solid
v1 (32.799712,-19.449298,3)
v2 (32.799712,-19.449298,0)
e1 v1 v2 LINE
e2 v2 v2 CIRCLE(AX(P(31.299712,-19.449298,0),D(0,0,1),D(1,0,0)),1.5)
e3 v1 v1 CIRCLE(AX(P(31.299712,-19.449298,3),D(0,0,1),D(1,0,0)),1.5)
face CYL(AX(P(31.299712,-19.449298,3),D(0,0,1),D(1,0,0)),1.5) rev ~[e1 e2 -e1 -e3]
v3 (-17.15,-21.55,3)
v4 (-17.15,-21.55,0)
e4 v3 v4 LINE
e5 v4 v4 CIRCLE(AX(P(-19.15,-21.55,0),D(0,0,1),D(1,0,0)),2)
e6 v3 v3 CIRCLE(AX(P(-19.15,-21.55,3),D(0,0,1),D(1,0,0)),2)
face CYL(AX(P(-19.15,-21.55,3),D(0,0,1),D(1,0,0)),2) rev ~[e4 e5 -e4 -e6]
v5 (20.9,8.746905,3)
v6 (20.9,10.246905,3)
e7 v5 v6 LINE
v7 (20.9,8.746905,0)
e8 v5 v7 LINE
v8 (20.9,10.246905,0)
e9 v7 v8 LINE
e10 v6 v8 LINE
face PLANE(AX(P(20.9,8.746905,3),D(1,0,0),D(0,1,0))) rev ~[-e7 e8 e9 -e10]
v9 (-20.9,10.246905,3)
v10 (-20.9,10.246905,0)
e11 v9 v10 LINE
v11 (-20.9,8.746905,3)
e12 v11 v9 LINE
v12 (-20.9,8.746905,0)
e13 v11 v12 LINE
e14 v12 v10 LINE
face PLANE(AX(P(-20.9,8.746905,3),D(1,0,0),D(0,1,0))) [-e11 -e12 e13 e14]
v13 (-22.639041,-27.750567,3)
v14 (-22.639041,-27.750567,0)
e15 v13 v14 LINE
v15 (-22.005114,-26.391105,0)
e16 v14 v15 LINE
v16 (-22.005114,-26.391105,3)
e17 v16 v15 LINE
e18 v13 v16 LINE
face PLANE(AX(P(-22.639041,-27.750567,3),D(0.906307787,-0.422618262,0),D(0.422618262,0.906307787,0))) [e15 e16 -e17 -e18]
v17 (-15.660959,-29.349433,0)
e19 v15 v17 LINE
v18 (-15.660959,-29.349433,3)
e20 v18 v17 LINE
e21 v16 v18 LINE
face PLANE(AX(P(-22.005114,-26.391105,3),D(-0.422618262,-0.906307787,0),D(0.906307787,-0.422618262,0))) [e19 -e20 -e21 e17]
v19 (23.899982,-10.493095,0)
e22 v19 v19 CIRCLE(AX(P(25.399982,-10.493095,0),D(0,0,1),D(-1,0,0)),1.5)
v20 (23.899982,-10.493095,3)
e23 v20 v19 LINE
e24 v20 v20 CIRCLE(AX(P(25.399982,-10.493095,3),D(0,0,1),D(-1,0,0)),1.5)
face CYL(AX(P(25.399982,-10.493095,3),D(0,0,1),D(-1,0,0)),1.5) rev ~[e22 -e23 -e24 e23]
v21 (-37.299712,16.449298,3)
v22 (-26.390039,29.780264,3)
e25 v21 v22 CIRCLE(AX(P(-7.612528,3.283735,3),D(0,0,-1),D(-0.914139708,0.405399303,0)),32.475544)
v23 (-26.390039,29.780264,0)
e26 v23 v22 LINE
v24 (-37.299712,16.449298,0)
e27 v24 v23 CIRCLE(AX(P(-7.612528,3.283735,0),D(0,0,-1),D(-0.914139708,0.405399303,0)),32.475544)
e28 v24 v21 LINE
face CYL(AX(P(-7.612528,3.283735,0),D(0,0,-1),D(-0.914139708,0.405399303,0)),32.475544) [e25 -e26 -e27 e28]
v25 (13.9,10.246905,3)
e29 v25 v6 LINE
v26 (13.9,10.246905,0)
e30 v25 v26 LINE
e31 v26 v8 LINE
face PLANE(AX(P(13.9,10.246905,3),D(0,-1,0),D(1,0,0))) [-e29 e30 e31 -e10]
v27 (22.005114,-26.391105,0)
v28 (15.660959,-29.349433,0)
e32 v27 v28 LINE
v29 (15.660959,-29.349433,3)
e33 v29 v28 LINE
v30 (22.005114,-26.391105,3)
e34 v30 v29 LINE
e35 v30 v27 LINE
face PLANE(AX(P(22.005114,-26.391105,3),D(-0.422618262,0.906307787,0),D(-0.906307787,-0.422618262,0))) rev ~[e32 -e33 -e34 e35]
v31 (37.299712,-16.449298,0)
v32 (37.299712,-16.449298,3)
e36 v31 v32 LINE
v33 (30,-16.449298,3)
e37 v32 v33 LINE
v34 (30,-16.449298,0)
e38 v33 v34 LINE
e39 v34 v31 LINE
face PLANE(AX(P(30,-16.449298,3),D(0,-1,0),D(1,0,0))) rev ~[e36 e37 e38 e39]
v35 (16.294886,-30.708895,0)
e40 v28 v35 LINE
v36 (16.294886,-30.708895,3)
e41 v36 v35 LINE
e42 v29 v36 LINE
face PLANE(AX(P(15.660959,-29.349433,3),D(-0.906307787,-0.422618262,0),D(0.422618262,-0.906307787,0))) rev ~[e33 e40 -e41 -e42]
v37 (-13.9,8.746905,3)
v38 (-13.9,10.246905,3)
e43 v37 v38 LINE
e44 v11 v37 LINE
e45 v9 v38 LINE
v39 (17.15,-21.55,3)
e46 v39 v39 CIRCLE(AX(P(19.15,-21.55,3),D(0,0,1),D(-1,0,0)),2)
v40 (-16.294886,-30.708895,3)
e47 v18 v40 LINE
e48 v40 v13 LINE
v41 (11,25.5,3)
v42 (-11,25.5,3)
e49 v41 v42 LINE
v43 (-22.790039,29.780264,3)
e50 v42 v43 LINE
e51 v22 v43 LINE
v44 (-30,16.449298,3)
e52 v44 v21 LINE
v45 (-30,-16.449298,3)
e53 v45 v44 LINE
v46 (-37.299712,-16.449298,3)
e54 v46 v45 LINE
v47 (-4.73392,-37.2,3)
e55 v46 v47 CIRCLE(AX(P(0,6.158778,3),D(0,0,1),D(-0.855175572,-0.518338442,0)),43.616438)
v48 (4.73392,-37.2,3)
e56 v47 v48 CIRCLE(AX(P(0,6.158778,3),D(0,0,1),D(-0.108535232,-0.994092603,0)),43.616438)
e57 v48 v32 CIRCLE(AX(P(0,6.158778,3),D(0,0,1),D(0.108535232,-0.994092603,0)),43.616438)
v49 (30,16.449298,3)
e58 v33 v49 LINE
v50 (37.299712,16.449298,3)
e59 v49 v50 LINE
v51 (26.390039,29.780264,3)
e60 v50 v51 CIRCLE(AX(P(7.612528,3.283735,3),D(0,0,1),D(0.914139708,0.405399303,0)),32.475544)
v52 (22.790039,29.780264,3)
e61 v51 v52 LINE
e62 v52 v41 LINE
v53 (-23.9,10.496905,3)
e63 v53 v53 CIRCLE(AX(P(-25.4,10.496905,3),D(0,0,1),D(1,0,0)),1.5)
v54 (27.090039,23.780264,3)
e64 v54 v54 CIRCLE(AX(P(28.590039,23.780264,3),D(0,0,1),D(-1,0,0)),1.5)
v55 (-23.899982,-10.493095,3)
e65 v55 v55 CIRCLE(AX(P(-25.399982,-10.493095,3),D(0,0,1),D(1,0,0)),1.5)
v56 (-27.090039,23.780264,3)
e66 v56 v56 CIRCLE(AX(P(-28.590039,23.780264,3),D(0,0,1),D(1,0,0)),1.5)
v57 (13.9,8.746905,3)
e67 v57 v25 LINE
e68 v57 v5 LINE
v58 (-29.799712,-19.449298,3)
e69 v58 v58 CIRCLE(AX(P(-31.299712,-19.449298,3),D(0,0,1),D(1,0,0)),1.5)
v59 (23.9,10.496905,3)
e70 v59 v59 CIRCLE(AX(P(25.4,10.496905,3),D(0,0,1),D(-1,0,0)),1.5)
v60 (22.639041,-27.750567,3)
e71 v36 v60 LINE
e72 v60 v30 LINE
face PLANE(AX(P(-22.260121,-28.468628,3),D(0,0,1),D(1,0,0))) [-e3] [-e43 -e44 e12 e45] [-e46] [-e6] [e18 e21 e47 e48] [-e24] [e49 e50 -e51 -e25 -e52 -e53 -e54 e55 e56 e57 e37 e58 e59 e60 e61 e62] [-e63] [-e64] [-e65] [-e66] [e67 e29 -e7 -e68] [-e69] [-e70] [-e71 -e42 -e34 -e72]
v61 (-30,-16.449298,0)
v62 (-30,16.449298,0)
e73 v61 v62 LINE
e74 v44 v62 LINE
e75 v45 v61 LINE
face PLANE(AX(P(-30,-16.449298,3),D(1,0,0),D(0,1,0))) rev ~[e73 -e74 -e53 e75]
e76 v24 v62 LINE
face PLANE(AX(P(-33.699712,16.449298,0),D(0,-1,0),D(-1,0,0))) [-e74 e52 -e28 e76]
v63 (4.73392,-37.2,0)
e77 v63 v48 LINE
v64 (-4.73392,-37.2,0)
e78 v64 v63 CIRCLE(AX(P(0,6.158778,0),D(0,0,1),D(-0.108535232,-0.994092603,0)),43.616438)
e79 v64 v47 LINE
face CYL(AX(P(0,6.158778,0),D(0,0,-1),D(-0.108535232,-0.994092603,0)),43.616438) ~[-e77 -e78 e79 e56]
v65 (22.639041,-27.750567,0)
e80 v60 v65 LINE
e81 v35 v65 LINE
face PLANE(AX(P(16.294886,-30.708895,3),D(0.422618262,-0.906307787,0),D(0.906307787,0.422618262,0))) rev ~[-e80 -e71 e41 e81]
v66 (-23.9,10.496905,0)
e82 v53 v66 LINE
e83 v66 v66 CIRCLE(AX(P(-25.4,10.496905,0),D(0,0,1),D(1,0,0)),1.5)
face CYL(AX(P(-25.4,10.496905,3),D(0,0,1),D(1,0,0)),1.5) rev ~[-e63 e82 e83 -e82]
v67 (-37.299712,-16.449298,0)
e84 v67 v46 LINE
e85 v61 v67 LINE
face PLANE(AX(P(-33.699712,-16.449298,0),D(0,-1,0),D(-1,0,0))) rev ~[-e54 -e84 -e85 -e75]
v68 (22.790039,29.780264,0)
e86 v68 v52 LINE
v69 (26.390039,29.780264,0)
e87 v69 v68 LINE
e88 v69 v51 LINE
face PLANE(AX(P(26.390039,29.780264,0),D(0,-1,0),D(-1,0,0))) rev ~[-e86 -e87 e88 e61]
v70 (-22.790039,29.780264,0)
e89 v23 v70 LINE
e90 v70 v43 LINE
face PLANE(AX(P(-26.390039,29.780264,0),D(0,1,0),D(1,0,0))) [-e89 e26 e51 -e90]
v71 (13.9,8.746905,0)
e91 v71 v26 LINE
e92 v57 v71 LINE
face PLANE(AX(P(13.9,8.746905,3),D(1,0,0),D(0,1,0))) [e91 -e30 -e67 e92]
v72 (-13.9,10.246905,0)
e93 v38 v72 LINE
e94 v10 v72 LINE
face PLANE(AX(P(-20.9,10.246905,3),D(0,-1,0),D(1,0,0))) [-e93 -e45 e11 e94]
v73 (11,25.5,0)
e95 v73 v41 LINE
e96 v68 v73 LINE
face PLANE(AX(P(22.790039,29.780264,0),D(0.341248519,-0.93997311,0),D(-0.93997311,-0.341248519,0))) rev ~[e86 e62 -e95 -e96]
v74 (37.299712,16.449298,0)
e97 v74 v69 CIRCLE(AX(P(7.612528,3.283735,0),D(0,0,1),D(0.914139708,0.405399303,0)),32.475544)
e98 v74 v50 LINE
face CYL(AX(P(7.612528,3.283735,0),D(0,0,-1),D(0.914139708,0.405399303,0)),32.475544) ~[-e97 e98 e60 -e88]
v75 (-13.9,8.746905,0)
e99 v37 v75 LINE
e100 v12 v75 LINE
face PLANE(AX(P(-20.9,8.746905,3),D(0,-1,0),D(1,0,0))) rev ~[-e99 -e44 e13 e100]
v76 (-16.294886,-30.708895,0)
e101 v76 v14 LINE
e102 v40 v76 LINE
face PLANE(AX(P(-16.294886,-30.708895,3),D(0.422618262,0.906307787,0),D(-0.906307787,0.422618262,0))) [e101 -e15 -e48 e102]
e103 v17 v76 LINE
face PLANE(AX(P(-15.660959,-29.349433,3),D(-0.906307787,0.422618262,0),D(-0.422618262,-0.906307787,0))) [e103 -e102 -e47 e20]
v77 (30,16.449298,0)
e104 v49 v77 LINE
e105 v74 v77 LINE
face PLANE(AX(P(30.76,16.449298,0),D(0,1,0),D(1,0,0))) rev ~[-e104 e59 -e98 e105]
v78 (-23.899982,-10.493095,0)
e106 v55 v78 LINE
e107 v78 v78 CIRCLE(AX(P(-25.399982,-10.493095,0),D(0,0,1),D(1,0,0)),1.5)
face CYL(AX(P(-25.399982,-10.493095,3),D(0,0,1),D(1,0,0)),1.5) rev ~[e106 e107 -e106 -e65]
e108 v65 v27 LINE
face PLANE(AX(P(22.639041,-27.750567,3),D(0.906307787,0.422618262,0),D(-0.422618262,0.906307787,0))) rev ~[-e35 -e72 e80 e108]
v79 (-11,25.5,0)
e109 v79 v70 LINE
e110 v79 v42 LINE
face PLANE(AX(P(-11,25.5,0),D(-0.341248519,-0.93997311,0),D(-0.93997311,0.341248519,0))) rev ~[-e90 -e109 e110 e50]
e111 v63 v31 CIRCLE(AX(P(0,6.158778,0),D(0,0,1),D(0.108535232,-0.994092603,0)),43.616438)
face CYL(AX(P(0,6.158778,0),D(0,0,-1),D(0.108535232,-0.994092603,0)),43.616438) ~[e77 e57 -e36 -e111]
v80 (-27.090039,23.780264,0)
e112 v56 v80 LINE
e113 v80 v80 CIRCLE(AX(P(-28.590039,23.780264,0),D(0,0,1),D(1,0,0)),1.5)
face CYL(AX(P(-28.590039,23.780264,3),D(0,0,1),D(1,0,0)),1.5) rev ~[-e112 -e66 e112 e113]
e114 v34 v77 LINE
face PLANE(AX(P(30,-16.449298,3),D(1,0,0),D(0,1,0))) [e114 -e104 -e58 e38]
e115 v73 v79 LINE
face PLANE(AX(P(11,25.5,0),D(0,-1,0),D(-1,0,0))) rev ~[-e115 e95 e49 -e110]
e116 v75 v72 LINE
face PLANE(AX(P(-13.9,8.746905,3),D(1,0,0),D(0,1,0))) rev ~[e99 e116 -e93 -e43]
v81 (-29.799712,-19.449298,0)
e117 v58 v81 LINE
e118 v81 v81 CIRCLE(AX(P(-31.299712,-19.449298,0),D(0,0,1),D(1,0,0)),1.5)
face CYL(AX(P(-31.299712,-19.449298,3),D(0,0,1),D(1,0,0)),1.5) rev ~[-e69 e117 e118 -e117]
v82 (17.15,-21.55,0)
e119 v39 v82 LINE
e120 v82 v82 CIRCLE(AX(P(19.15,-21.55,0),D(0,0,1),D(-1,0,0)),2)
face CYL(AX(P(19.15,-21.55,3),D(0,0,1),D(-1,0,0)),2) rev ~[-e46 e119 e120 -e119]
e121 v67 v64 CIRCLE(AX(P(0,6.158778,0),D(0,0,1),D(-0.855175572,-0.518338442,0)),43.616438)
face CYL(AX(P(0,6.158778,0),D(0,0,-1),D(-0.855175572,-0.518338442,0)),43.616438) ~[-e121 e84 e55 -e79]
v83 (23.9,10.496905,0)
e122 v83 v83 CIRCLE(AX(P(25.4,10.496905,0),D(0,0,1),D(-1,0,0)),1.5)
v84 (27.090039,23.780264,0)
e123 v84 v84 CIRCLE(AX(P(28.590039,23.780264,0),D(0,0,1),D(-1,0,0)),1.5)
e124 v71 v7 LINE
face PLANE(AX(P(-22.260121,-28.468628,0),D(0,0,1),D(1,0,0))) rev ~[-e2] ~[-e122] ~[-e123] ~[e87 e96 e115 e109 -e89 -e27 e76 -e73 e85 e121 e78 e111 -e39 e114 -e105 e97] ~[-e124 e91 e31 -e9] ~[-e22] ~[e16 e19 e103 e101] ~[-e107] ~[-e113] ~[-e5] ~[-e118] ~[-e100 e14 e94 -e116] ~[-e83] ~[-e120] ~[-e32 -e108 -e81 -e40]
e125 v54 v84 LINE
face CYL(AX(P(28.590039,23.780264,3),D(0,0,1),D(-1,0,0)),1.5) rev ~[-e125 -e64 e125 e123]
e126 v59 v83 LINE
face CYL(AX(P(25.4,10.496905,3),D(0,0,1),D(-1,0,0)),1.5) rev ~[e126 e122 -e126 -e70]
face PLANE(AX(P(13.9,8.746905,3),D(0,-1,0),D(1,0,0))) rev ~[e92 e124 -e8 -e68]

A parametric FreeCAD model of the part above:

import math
import FreeCAD as App
import Part
import Sketcher
from FreeCAD import Vector
Q = App.Units.Quantity


def add_polygon(sketch, points):
    """Adds a closed chain of lines whose ends are joined by coincident constraints."""
    first, n = sketch.GeometryCount, len(points)
    for a, b in zip(points, points[1:] + points[:1]):
        sketch.addGeometry(Part.LineSegment(App.Vector(*a, 0), App.Vector(*b, 0)), False)
    for i in range(n):
        sketch.addConstraint(Sketcher.Constraint("Coincident", first + i, 2, first + (i + 1) % n, 1))

doc = App.newDocument("Part")
params = doc.addObject("Spreadsheet::Sheet", "Params")
for row, (alias, value) in enumerate([
    ("sketch1_radius", "37.5 mm"),
    ("sketch1_width", "22 mm"),
    ("pad1_length", "3 mm"),
    ("sketch2_diameter", "3 mm"),
    ("pocket1_length", "3 mm"),
    ("sketch3_radius", "37.5 mm"),
    ("pocket2_length", "10 mm"),
    ("sketch4_radius", "37.5 mm"),
    ("sketch4_height", "5 mm"),
    ("pad2_length", "3 mm"),
    ("sketch5_width", "0.56 mm"),
    ("pocket3_length", "3 mm"),
    ("sketch6_width", "0.2 mm"),
    ("pocket4_length", "3 mm"),
    ("sketch7_diameter", "4 mm"),
    ("pocket5_length", "3 mm"),
    ("sketch8_radius", "37.5 mm"),
    ("sketch8_width", "3.6 mm"),
    ("pad3_length", "3 mm"),
    ("sketch9_radius", "37.5 mm"),
    ("pocket6_length", "3 mm"),
    ("sketch10_radius", "37.5 mm"),
    ("sketch10_width", "3.6 mm"),
    ("pad4_length", "3 mm"),
    ("sketch11_diameter", "3 mm"),
    ("pocket7_length", "3 mm"),
    ("sketch12_length", "7 mm"),
    ("sketch12_length2", "1.5 mm"),
    ("pocket8_length", "3 mm"),
    ("sketch13_width", "7 mm"),
    ("sketch13_height", "1.5 mm"),
    ("pocket9_length", "3 mm"),
    ("sketch14_diameter", "3 mm"),
    ("pocket10_length", "3 mm"),
], start=1):
    params.set(f"A{row}", alias)
    params.set(f"B{row}", "=" + value)
    params.setAlias(f"B{row}", alias)

body = doc.addObject("PartDesign::Body", "Body")

# Sketch on XY plane
sketch1 = body.newObject("Sketcher::SketchObject", "Sketch")
sketch1.AttachmentSupport = (doc.getObject("XY_Plane"), [""])
sketch1.MapMode = "FlatFace"
sketch1.addGeometry([
    Part.LineSegment(Vector(-11, 26, 0), Vector(-23, 30, 0)),
    Part.ArcOfCircle(Part.Circle(Vector(0, 0, 0), Vector(0, 0, 1), 38), math.radians(127), math.radians(413)),
    Part.LineSegment(Vector(23, 30, 0), Vector(11, 26, 0)),
    Part.LineSegment(Vector(11, 26, 0), Vector(-11, 26, 0)),
], False)
sketch1.addConstraint([
    Sketcher.Constraint("Coincident", 0, 2, 1, 1),
    Sketcher.Constraint("Coincident", 1, 2, 2, 1),
    Sketcher.Constraint("Coincident", 2, 2, 3, 1),
    Sketcher.Constraint("Coincident", 3, 2, 0, 1),
    Sketcher.Constraint("Horizontal", 3),
    Sketcher.Constraint("Coincident", 1, 3, -1, 1),
    Sketcher.Constraint("Horizontal", 0, 2, 1, 2),
    Sketcher.Constraint("Equal", 0, 2),
    Sketcher.Constraint("Radius", 1, 37.5),
    Sketcher.Constraint("DistanceX", 3, 2, 3, 1, 22.0),
    Sketcher.Constraint("DistanceY", -1, 1, 2, 2, 25.5),
    Sketcher.Constraint("DistanceX", 0, 2, -1, 1, 22.790039),
])
sketch1.setExpression("Constraints[8]", "Params.sketch1_radius")
sketch1.setExpression("Constraints[9]", "Params.sketch1_width")
pad1 = body.newObject("PartDesign::Pad", "Pad")
pad1.Profile = sketch1
pad1.setExpression("Length", "Params.pad1_length")

# Sketch on XY plane
sketch2 = body.newObject("Sketcher::SketchObject", "Sketch001")
sketch2.AttachmentSupport = (doc.getObject("XY_Plane"), [""])
sketch2.MapMode = "FlatFace"
sketch2.AttachmentOffset = App.Placement(Vector(0, 0, 3), App.Rotation())
sketch2.addGeometry([
    Part.Circle(Vector(-25.4, 10.5, 0), Vector(0, 0, 1), 1.5),
    Part.Circle(Vector(-25.4, -10.5, 0), Vector(0, 0, 1), 1.5),
    Part.Circle(Vector(25.4, -10.5, 0), Vector(0, 0, 1), 1.5),
    Part.Circle(Vector(25.4, 10.5, 0), Vector(0, 0, 1), 1.5),
], False)
sketch2.addConstraint([
    Sketcher.Constraint("Equal", 0, 1),
    Sketcher.Constraint("Equal", 1, 2),
    Sketcher.Constraint("Equal", 2, 3),
    Sketcher.Constraint("Symmetric", 1, 3, 2, 3, -2),
    Sketcher.Constraint("Symmetric", 0, 3, 3, 3, -2),
    Sketcher.Constraint("Diameter", 0, 3.0),
    Sketcher.Constraint("DistanceX", 0, 3, -1, 1, 25.4),
    Sketcher.Constraint("DistanceY", 1, 3, 0, 3, 20.99),
    Sketcher.Constraint("DistanceX", 1, 3, -1, 1, 25.399982),
    Sketcher.Constraint("DistanceY", -1, 1, 0, 3, 10.496905),
])
sketch2.setExpression("Constraints[5]", "Params.sketch2_diameter")
pocket1 = body.newObject("PartDesign::Pocket", "Pocket")
pocket1.Profile = sketch2
pocket1.setExpression("Length", "Params.pocket1_length")

# Sketch on XY plane
sketch3 = body.newObject("Sketcher::SketchObject", "Sketch002")
sketch3.AttachmentSupport = (doc.getObject("XY_Plane"), [""])
sketch3.MapMode = "FlatFace"
sketch3.AttachmentOffset = App.Placement(Vector(0, 0, -7), App.Rotation())
sketch3.addGeometry([
    Part.LineSegment(Vector(-31, -21, 0), Vector(-31, 21, 0)),
    Part.ArcOfCircle(Part.Circle(Vector(0, 0, 0), Vector(0, 0, 1), 38), math.radians(145), math.radians(215)),
    Part.LineSegment(Vector(31, 21, 0), Vector(31, -21, 0)),
    Part.ArcOfCircle(Part.Circle(Vector(0, 0, 0), Vector(0, 0, 1), 38), math.radians(-35), math.radians(35)),
], False)
sketch3.addConstraint([
    Sketcher.Constraint("Coincident", 0, 1, 1, 2),
    Sketcher.Constraint("Coincident", 1, 1, 0, 2),
    Sketcher.Constraint("Coincident", 2, 1, 3, 2),
    Sketcher.Constraint("Coincident", 3, 1, 2, 2),
    Sketcher.Constraint("Vertical", 0),
    Sketcher.Constraint("Vertical", 2),
    Sketcher.Constraint("Coincident", 1, 3, -1, 1),
    Sketcher.Constraint("Coincident", 3, 3, -1, 1),
    Sketcher.Constraint("Equal", 1, 3),
    Sketcher.Constraint("Horizontal", 1, 1, 2, 1),
    Sketcher.Constraint("Radius", 1, 37.5),
    Sketcher.Constraint("DistanceX", 0, 1, -1, 1, 30.76),
])
sketch3.setExpression("Constraints[10]", "Params.sketch3_radius")
pocket2 = body.newObject("PartDesign::Pocket", "Pocket001")
pocket2.Profile = sketch3
pocket2.setExpression("Length", "Params.pocket2_length")
pocket2.Reversed = True

# Sketch on XY plane
sketch4 = body.newObject("Sketcher::SketchObject", "Sketch003")
sketch4.AttachmentSupport = (doc.getObject("XY_Plane"), [""])
sketch4.MapMode = "FlatFace"
sketch4.addGeometry([
    Part.LineSegment(Vector(-30.8, -21.4, 0), Vector(-30.8, -16.4, 0)),  # 0
    Part.LineSegment(Vector(-30.8, -16.4, 0), Vector(-33.7, -16.4, 0)),  # 1
    Part.ArcOfCircle(Part.Circle(Vector(0, 0, 0), Vector(0, 0, 1), 37.5), math.radians(-153.98), math.radians(-145.11)),  # 2
    Part.LineSegment(Vector(-33.7, 16.4, 0), Vector(-30.8, 16.4, 0)),  # 3
    Part.LineSegment(Vector(-30.8, 16.4, 0), Vector(-30.8, 21.4, 0)),  # 4
    Part.ArcOfCircle(Part.Circle(Vector(0, 0, 0), Vector(0, 0, 1), 37.5), math.radians(145.11), math.radians(153.98)),  # 5
    Part.LineSegment(Vector(30.8, 21.4, 0), Vector(30.8, 16.4, 0)),  # 6
    Part.LineSegment(Vector(30.8, 16.4, 0), Vector(33.7, 16.4, 0)),  # 7
    Part.ArcOfCircle(Part.Circle(Vector(0, 0, 0), Vector(0, 0, 1), 37.5), math.radians(26.02), math.radians(34.89)),  # 8
    Part.LineSegment(Vector(30.8, -16.4, 0), Vector(30.8, -21.4, 0)),  # 9
    Part.ArcOfCircle(Part.Circle(Vector(0, 0, 0), Vector(0, 0, 1), 37.5), math.radians(-34.89), math.radians(-26.02)),  # 10
    Part.LineSegment(Vector(33.7, -16.4, 0), Vector(30.8, -16.4, 0)),  # 11
], False)
sketch4.addConstraint([
    Sketcher.Constraint("Coincident", 0, 2, 1, 1),
    Sketcher.Constraint("Coincident", 1, 2, 2, 1),
    Sketcher.Constraint("Coincident", 2, 2, 0, 1),
    Sketcher.Constraint("Coincident", 3, 2, 4, 1),
    Sketcher.Constraint("Coincident", 4, 2, 5, 1),
    Sketcher.Constraint("Coincident", 5, 2, 3, 1),
    Sketcher.Constraint("Coincident", 6, 2, 7, 1),
    Sketcher.Constraint("Coincident", 7, 2, 8, 1),
    Sketcher.Constraint("Coincident", 8, 2, 6, 1),
    Sketcher.Constraint("Coincident", 9, 2, 10, 1),
    Sketcher.Constraint("Coincident", 10, 2, 11, 1),
    Sketcher.Constraint("Coincident", 11, 2, 9, 1),
    Sketcher.Constraint("Vertical", 0),
    Sketcher.Constraint("Horizontal", 1),
    Sketcher.Constraint("Horizontal", 3),
    Sketcher.Constraint("Vertical", 4),
    Sketcher.Constraint("Vertical", 6),
    Sketcher.Constraint("Horizontal", 7),
    Sketcher.Constraint("Vertical", 9),
    Sketcher.Constraint("Horizontal", 11),
    Sketcher.Constraint("Coincident", 2, 3, -1, 1),
    Sketcher.Constraint("Coincident", 5, 3, -1, 1),
    Sketcher.Constraint("Coincident", 8, 3, -1, 1),
    Sketcher.Constraint("Coincident", 10, 3, -1, 1),
    Sketcher.Constraint("Equal", 2, 5),
    Sketcher.Constraint("Equal", 5, 8),
    Sketcher.Constraint("Equal", 8, 10),
    Sketcher.Constraint("Symmetric", 0, 2, 6, 2, -1, 1),
    Sketcher.Constraint("Symmetric", 3, 2, 11, 2, -1, 1),
    Sketcher.Constraint("Symmetric", 3, 2, 6, 2, -2),
    Sketcher.Constraint("Radius", 2, 37.5),
    Sketcher.Constraint("DistanceY", 0, 1, 0, 2, 5.0),
    Sketcher.Constraint("DistanceX", 0, 2, -1, 1, 30.76),
])
sketch4.setExpression("Constraints[30]", "Params.sketch4_radius")
sketch4.setExpression("Constraints[31]", "Params.sketch4_height")
pad2 = body.newObject("PartDesign::Pad", "Pad001")
pad2.Profile = sketch4
pad2.setExpression("Length", "Params.pad2_length")

# Sketch on XY plane
sketch5 = body.newObject("Sketcher::SketchObject", "Sketch004")
sketch5.AttachmentSupport = (doc.getObject("XY_Plane"), [""])
sketch5.MapMode = "FlatFace"
sketch5.AttachmentOffset = App.Placement(Vector(0, 0, 3), App.Rotation())
add_polygon(sketch5, [(-30.8, 16.4), (-30.8, -16.4), (-30.2, -16.4), (-30.2, 16.4)])  # lines 0-3
add_polygon(sketch5, [(30.2, 16.4), (30.2, -16.4), (30.8, -16.4), (30.8, 16.4)])  # lines 4-7
sketch5.addConstraint([
    Sketcher.Constraint("Vertical", 0),
    Sketcher.Constraint("Horizontal", 1),
    Sketcher.Constraint("Vertical", 2),
    Sketcher.Constraint("Horizontal", 3),
    Sketcher.Constraint("Vertical", 4),
    Sketcher.Constraint("Horizontal", 5),
    Sketcher.Constraint("Vertical", 6),
    Sketcher.Constraint("Horizontal", 7),
    Sketcher.Constraint("Symmetric", 2, 2, 4, 2, -1, 1),
    Sketcher.Constraint("Symmetric", 0, 2, 6, 2, -1, 1),
    Sketcher.Constraint("Horizontal", 1, 2, 4, 2),
    Sketcher.Constraint("DistanceX", 1, 1, 1, 2, 0.56),
    Sketcher.Constraint("DistanceX", 1, 2, -1, 1, 30.2),
    Sketcher.Constraint("DistanceY", 0, 2, -1, 1, 16.449298),
])
sketch5.setExpression("Constraints[19]", "Params.sketch5_width")
pocket3 = body.newObject("PartDesign::Pocket", "Pocket002")
pocket3.Profile = sketch5
pocket3.setExpression("Length", "Params.pocket3_length")

# Sketch on XY plane
sketch6 = body.newObject("Sketcher::SketchObject", "Sketch005")
sketch6.AttachmentSupport = (doc.getObject("XY_Plane"), [""])
sketch6.MapMode = "FlatFace"
sketch6.AttachmentOffset = App.Placement(Vector(0, 0, 3), App.Rotation())
add_polygon(sketch6, [(-30.2, 16.45), (-30.2, -16.45), (-30, -16.45), (-30, 16.45)])  # lines 0-3
add_polygon(sketch6, [(30, 16.45), (30, -16.45), (30.2, -16.45), (30.2, 16.45)])  # lines 4-7
sketch6.addConstraint([
    Sketcher.Constraint("Vertical", 0),
    Sketcher.Constraint("Horizontal", 1),
    Sketcher.Constraint("Vertical", 2),
    Sketcher.Constraint("Horizontal", 3),
    Sketcher.Constraint("Vertical", 4),
    Sketcher.Constraint("Horizontal", 5),
    Sketcher.Constraint("Vertical", 6),
    Sketcher.Constraint("Horizontal", 7),
    Sketcher.Constraint("Symmetric", 2, 2, 4, 2, -1, 1),
    Sketcher.Constraint("Symmetric", 0, 2, 6, 2, -1, 1),
    Sketcher.Constraint("Horizontal", 1, 2, 4, 2),
    Sketcher.Constraint("DistanceX", 1, 1, 1, 2, 0.2),
    Sketcher.Constraint("DistanceX", 1, 2, -1, 1, 30.0),
    Sketcher.Constraint("DistanceY", 0, 2, -1, 1, 16.449298),
])
sketch6.setExpression("Constraints[19]", "Params.sketch6_width")
pocket4 = body.newObject("PartDesign::Pocket", "Pocket003")
pocket4.Profile = sketch6
pocket4.setExpression("Length", "Params.pocket4_length")

# Sketch on XY plane
sketch7 = body.newObject("Sketcher::SketchObject", "Sketch006")
sketch7.AttachmentSupport = (doc.getObject("XY_Plane"), [""])
sketch7.MapMode = "FlatFace"
sketch7.AttachmentOffset = App.Placement(Vector(0, 0, 3), App.Rotation())
sketch7.addGeometry([
    Part.Circle(Vector(-19.1, -21.6, 0), Vector(0, 0, 1), 2),
    Part.Circle(Vector(19.1, -21.6, 0), Vector(0, 0, 1), 2),
], False)
sketch7.addConstraint([
    Sketcher.Constraint("Equal", 0, 1),
    Sketcher.Constraint("Symmetric", 0, 3, 1, 3, -2),
    Sketcher.Constraint("Diameter", 0, 4.0),
    Sketcher.Constraint("DistanceX", 0, 3, 1, 3, 38.3),
    Sketcher.Constraint("DistanceY", 0, 3, -1, 1, 21.55),
])
sketch7.setExpression("Constraints[2]", "Params.sketch7_diameter")
pocket5 = body.newObject("PartDesign::Pocket", "Pocket004")
pocket5.Profile = sketch7
pocket5.setExpression("Length", "Params.pocket5_length")

# Sketch on XY plane
sketch8 = body.newObject("Sketcher::SketchObject", "Sketch007")
sketch8.AttachmentSupport = (doc.getObject("XY_Plane"), [""])
sketch8.MapMode = "FlatFace"
sketch8.addGeometry([
    Part.LineSegment(Vector(-37.3, 16.4, 0), Vector(-33.7, 16.4, 0)),  # 0
    Part.ArcOfCircle(Part.Circle(Vector(0, 0, 0), Vector(0, 0, 1), 37.5), math.radians(127), math.radians(154)),  # 1
    Part.LineSegment(Vector(-22.8, 29.8, 0), Vector(-26.4, 29.8, 0)),  # 2
    Part.ArcOfCircle(Part.Circle(Vector(-7.6, 3.3, 0), Vector(0, 0, 1), 32.5), math.radians(125), math.radians(156)),  # 3
    Part.LineSegment(Vector(33.7, 16.4, 0), Vector(37.3, 16.4, 0)),  # 4
    Part.ArcOfCircle(Part.Circle(Vector(7.6, 3.3, 0), Vector(0, 0, 1), 32.5), math.radians(24), math.radians(55)),  # 5
    Part.LineSegment(Vector(26.4, 29.8, 0), Vector(22.8, 29.8, 0)),  # 6
    Part.ArcOfCircle(Part.Circle(Vector(0, 0, 0), Vector(0, 0, 1), 37.5), math.radians(26), math.radians(53)),  # 7
], False)
sketch8.addConstraint([
    Sketcher.Constraint("Coincident", 0, 2, 1, 2),
    Sketcher.Constraint("Coincident", 1, 1, 2, 1),
    Sketcher.Constraint("Coincident", 2, 2, 3, 1),
    Sketcher.Constraint("Coincident", 3, 2, 0, 1),
    Sketcher.Constraint("Coincident", 4, 2, 5, 1),
    Sketcher.Constraint("Coincident", 5, 2, 6, 1),
    Sketcher.Constraint("Coincident", 6, 2, 7, 2),
    Sketcher.Constraint("Coincident", 7, 1, 4, 1),
    Sketcher.Constraint("Horizontal", 0),
    Sketcher.Constraint("Horizontal", 2),
    Sketcher.Constraint("Horizontal", 4),
    Sketcher.Constraint("Horizontal", 6),
    Sketcher.Constraint("Coincident", 1, 3, -1, 1),
    Sketcher.Constraint("Coincident", 7, 3, -1, 1),
    Sketcher.Constraint("Equal", 3, 5),
    Sketcher.Constraint("Equal", 1, 7),
    Sketcher.Constraint("Symmetric", 3, 3, 5, 3, -2),
    Sketcher.Constraint("Horizontal", 3, 2, 4, 2),
    Sketcher.Constraint("Horizontal", 2, 2, 5, 2),
    Sketcher.Constraint("Equal", 0, 2),
    Sketcher.Constraint("Radius", 1, 37.5),
    Sketcher.Constraint("DistanceX", 0, 1, 0, 2, 3.6),
    Sketcher.Constraint("Radius", 3, 32.475544),
    Sketcher.Constraint("DistanceY", -1, 1, 0, 2, 16.449298),
    Sketcher.Constraint("DistanceX", 1, 1, -1, 1, 22.790039),
])
sketch8.setExpression("Constraints[20]", "Params.sketch8_radius")
sketch8.setExpression("Constraints[21]", "Params.sketch8_width")
pad3 = body.newObject("PartDesign::Pad", "Pad002")
pad3.Profile = sketch8
pad3.setExpression("Length", "Params.pad3_length")

# Sketch on XY plane
sketch9 = body.newObject("Sketcher::SketchObject", "Sketch008")
sketch9.AttachmentSupport = (doc.getObject("XY_Plane"), [""])
sketch9.MapMode = "FlatFace"
sketch9.addGeometry([
    Part.LineSegment(Vector(5, -37, 0), Vector(-5, -37, 0)),
    Part.ArcOfCircle(Part.Circle(Vector(0, 0, 0), Vector(0, 0, 1), 37), math.radians(-97.25), math.radians(-82.75)),
], False)
sketch9.addConstraint([
    Sketcher.Constraint("Coincident", 0, 1, 1, 2),
    Sketcher.Constraint("Coincident", 1, 1, 0, 2),
    Sketcher.Constraint("Horizontal", 0),
    Sketcher.Constraint("Coincident", 1, 3, -1, 1),
    Sketcher.Constraint("Radius", 1, 37.5),
    Sketcher.Constraint("DistanceY", 0, 1, -1, 1, 37.2),
])
sketch9.setExpression("Constraints[4]", "Params.sketch9_radius")
pocket6 = body.newObject("PartDesign::Pocket", "Pocket005")
pocket6.Profile = sketch9
pocket6.setExpression("Length", "Params.pocket6_length")
pocket6.Reversed = True

# Sketch on XY plane
sketch10 = body.newObject("Sketcher::SketchObject", "Sketch009")
sketch10.AttachmentSupport = (doc.getObject("XY_Plane"), [""])
sketch10.MapMode = "FlatFace"
sketch10.addGeometry([
    Part.ArcOfCircle(Part.Circle(Vector(0, 0, 0), Vector(0, 0, 1), 37.5), math.radians(-154), math.radians(-97)),  # 0
    Part.LineSegment(Vector(-33.7, -16.4, 0), Vector(-37.3, -16.4, 0)),  # 1
    Part.ArcOfCircle(Part.Circle(Vector(0, 6.2, 0), Vector(0, 0, 1), 43.6), math.radians(-149), math.radians(-96)),  # 2
    Part.ArcOfCircle(Part.Circle(Vector(0, 0, 0), Vector(0, 0, 1), 37.5), math.radians(-83), math.radians(-26)),  # 3
    Part.ArcOfCircle(Part.Circle(Vector(0, 6.2, 0), Vector(0, 0, 1), 43.6), math.radians(-84), math.radians(-31)),  # 4
    Part.LineSegment(Vector(37.3, -16.4, 0), Vector(33.7, -16.4, 0)),  # 5
    Part.LineSegment(Vector(4.7, -37.2, 0), Vector(-4.7, -37.2, 0)),  # 6
    Part.ArcOfCircle(Part.Circle(Vector(0, 6.2, 0), Vector(0, 0, 1), 43.6), math.radians(-96.23), math.radians(-83.77)),  # 7
], False)
sketch10.addConstraint([
    Sketcher.Constraint("Coincident", 0, 1, 1, 1),
    Sketcher.Constraint("Coincident", 1, 2, 2, 1),
    Sketcher.Constraint("Coincident", 2, 2, 0, 2),
    Sketcher.Constraint("Coincident", 3, 1, 4, 1),
    Sketcher.Constraint("Coincident", 4, 2, 5, 1),
    Sketcher.Constraint("Coincident", 5, 2, 3, 2),
    Sketcher.Constraint("Coincident", 6, 1, 7, 2),
    Sketcher.Constraint("Coincident", 7, 1, 6, 2),
    Sketcher.Constraint("Horizontal", 1),
    Sketcher.Constraint("Horizontal", 5),
    Sketcher.Constraint("Horizontal", 6),
    Sketcher.Constraint("Coincident", 0, 3, -1, 1),
    Sketcher.Constraint("Coincident", 3, 3, -1, 1),
    Sketcher.Constraint("Coincident", 4, 3, 2, 3),
    Sketcher.Constraint("Coincident", 7, 3, 2, 3),
    Sketcher.Constraint("Coincident", 6, 1, 3, 1),
    Sketcher.Constraint("Coincident", 7, 1, 2, 2),
    Sketcher.Constraint("Equal", 0, 3),
    Sketcher.Constraint("Horizontal", 1, 2, 4, 2),
    Sketcher.Constraint("Radius", 0, 37.5),
    Sketcher.Constraint("DistanceX", 1, 2, 1, 1, 3.6),
    Sketcher.Constraint("DistanceY", 2, 2, -1, 1, 37.2),
    Sketcher.Constraint("Radius", 2, 43.616438),
])
sketch10.setExpression("Constraints[19]", "Params.sketch10_radius")
sketch10.setExpression("Constraints[20]", "Params.sketch10_width")
pad4 = body.newObject("PartDesign::Pad", "Pad003")
pad4.Profile = sketch10
pad4.setExpression("Length", "Params.pad4_length")

# Sketch on XY plane
sketch11 = body.newObject("Sketcher::SketchObject", "Sketch010")
sketch11.AttachmentSupport = (doc.getObject("XY_Plane"), [""])
sketch11.MapMode = "FlatFace"
sketch11.AttachmentOffset = App.Placement(Vector(0, 0, 3), App.Rotation())
sketch11.addGeometry([
    Part.Circle(Vector(-28.6, 23.8, 0), Vector(0, 0, 1), 1.5),
    Part.Circle(Vector(28.6, 23.8, 0), Vector(0, 0, 1), 1.5),
], False)
sketch11.addConstraint([
    Sketcher.Constraint("Equal", 0, 1),
    Sketcher.Constraint("Symmetric", 0, 3, 1, 3, -2),
    Sketcher.Constraint("Diameter", 0, 3.0),
    Sketcher.Constraint("DistanceX", 0, 3, -1, 1, 28.590039),
    Sketcher.Constraint("DistanceY", -1, 1, 0, 3, 23.780264),
])
sketch11.setExpression("Constraints[2]", "Params.sketch11_diameter")
pocket7 = body.newObject("PartDesign::Pocket", "Pocket006")
pocket7.Profile = sketch11
pocket7.setExpression("Length", "Params.pocket7_length")

# Sketch on XY plane
sketch12 = body.newObject("Sketcher::SketchObject", "Sketch011")
sketch12.AttachmentSupport = (doc.getObject("XY_Plane"), [""])
sketch12.MapMode = "FlatFace"
sketch12.AttachmentOffset = App.Placement(Vector(0, 0, 3), App.Rotation())
add_polygon(sketch12, [(-15.7, -29.3), (-22, -26.4), (-22.6, -27.8), (-16.3, -30.7)])  # lines 0-3
add_polygon(sketch12, [(22, -26.4), (15.7, -29.3), (16.3, -30.7), (22.6, -27.8)])  # lines 4-7
sketch12.addConstraint([
    Sketcher.Constraint("Symmetric", 3, 2, 4, 2, -2),
    Sketcher.Constraint("Symmetric", 2, 2, 5, 2, -2),
    Sketcher.Constraint("Symmetric", 1, 2, 6, 2, -2),
    Sketcher.Constraint("Symmetric", 0, 2, 7, 2, -2),
    Sketcher.Constraint("Perpendicular", 0, 1),
    Sketcher.Constraint("Perpendicular", 1, 2),
    Sketcher.Constraint("Perpendicular", 2, 3),
    Sketcher.Constraint("Angle", 0, Q("155 deg")),
    Sketcher.Constraint("Distance", 0, 7.0),
    Sketcher.Constraint("Distance", 1, 1.5),
    Sketcher.Constraint("DistanceX", 1, 2, 4, 2, 38.3),
    Sketcher.Constraint("DistanceY", 0, 2, -1, 1, 26.391105),
])
sketch12.setExpression("Constraints[16]", "Params.sketch12_length")
sketch12.setExpression("Constraints[17]", "Params.sketch12_length2")
pocket8 = body.newObject("PartDesign::Pocket", "Pocket007")
pocket8.Profile = sketch12
pocket8.setExpression("Length", "Params.pocket8_length")

# Sketch on XY plane
sketch13 = body.newObject("Sketcher::SketchObject", "Sketch012")
sketch13.AttachmentSupport = (doc.getObject("XY_Plane"), [""])
sketch13.MapMode = "FlatFace"
sketch13.AttachmentOffset = App.Placement(Vector(0, 0, 3), App.Rotation())
add_polygon(sketch13, [(-20.9, 10.2), (-20.9, 8.7), (-13.9, 8.7), (-13.9, 10.2)])  # lines 0-3
add_polygon(sketch13, [(13.9, 10.2), (13.9, 8.7), (20.9, 8.7), (20.9, 10.2)])  # lines 4-7
sketch13.addConstraint([
    Sketcher.Constraint("Vertical", 0),
    Sketcher.Constraint("Horizontal", 1),
    Sketcher.Constraint("Vertical", 2),
    Sketcher.Constraint("Horizontal", 3),
    Sketcher.Constraint("Vertical", 4),
    Sketcher.Constraint("Horizontal", 5),
    Sketcher.Constraint("Vertical", 6),
    Sketcher.Constraint("Horizontal", 7),
    Sketcher.Constraint("Symmetric", 1, 2, 4, 2, -2),
    Sketcher.Constraint("Symmetric", 3, 2, 6, 2, -2),
    Sketcher.Constraint("DistanceX", 1, 1, 1, 2, 7.0),
    Sketcher.Constraint("DistanceY", 0, 2, 0, 1, 1.5),
    Sketcher.Constraint("DistanceX", 0, 2, -1, 1, 20.9),
    Sketcher.Constraint("DistanceY", -1, 1, 0, 2, 8.746905),
])
sketch13.setExpression("Constraints[18]", "Params.sketch13_width")
sketch13.setExpression("Constraints[19]", "Params.sketch13_height")
pocket9 = body.newObject("PartDesign::Pocket", "Pocket008")
pocket9.Profile = sketch13
pocket9.setExpression("Length", "Params.pocket9_length")

# Sketch on XY plane
sketch14 = body.newObject("Sketcher::SketchObject", "Sketch013")
sketch14.AttachmentSupport = (doc.getObject("XY_Plane"), [""])
sketch14.MapMode = "FlatFace"
sketch14.AttachmentOffset = App.Placement(Vector(0, 0, 3), App.Rotation())
sketch14.addGeometry([
    Part.Circle(Vector(-31.3, -19.4, 0), Vector(0, 0, 1), 1.5),
    Part.Circle(Vector(31.3, -19.4, 0), Vector(0, 0, 1), 1.5),
], False)
sketch14.addConstraint([
    Sketcher.Constraint("Equal", 0, 1),
    Sketcher.Constraint("Symmetric", 0, 3, 1, 3, -2),
    Sketcher.Constraint("Diameter", 0, 3.0),
    Sketcher.Constraint("DistanceY", 0, 3, -1, 1, 19.449298),
    Sketcher.Constraint("DistanceX", 0, 3, -1, 1, 31.299712),
])
sketch14.setExpression("Constraints[2]", "Params.sketch14_diameter")
pocket10 = body.newObject("PartDesign::Pocket", "Pocket009")
pocket10.Profile = sketch14
pocket10.setExpression("Length", "Params.pocket10_length")

doc.recompute()
